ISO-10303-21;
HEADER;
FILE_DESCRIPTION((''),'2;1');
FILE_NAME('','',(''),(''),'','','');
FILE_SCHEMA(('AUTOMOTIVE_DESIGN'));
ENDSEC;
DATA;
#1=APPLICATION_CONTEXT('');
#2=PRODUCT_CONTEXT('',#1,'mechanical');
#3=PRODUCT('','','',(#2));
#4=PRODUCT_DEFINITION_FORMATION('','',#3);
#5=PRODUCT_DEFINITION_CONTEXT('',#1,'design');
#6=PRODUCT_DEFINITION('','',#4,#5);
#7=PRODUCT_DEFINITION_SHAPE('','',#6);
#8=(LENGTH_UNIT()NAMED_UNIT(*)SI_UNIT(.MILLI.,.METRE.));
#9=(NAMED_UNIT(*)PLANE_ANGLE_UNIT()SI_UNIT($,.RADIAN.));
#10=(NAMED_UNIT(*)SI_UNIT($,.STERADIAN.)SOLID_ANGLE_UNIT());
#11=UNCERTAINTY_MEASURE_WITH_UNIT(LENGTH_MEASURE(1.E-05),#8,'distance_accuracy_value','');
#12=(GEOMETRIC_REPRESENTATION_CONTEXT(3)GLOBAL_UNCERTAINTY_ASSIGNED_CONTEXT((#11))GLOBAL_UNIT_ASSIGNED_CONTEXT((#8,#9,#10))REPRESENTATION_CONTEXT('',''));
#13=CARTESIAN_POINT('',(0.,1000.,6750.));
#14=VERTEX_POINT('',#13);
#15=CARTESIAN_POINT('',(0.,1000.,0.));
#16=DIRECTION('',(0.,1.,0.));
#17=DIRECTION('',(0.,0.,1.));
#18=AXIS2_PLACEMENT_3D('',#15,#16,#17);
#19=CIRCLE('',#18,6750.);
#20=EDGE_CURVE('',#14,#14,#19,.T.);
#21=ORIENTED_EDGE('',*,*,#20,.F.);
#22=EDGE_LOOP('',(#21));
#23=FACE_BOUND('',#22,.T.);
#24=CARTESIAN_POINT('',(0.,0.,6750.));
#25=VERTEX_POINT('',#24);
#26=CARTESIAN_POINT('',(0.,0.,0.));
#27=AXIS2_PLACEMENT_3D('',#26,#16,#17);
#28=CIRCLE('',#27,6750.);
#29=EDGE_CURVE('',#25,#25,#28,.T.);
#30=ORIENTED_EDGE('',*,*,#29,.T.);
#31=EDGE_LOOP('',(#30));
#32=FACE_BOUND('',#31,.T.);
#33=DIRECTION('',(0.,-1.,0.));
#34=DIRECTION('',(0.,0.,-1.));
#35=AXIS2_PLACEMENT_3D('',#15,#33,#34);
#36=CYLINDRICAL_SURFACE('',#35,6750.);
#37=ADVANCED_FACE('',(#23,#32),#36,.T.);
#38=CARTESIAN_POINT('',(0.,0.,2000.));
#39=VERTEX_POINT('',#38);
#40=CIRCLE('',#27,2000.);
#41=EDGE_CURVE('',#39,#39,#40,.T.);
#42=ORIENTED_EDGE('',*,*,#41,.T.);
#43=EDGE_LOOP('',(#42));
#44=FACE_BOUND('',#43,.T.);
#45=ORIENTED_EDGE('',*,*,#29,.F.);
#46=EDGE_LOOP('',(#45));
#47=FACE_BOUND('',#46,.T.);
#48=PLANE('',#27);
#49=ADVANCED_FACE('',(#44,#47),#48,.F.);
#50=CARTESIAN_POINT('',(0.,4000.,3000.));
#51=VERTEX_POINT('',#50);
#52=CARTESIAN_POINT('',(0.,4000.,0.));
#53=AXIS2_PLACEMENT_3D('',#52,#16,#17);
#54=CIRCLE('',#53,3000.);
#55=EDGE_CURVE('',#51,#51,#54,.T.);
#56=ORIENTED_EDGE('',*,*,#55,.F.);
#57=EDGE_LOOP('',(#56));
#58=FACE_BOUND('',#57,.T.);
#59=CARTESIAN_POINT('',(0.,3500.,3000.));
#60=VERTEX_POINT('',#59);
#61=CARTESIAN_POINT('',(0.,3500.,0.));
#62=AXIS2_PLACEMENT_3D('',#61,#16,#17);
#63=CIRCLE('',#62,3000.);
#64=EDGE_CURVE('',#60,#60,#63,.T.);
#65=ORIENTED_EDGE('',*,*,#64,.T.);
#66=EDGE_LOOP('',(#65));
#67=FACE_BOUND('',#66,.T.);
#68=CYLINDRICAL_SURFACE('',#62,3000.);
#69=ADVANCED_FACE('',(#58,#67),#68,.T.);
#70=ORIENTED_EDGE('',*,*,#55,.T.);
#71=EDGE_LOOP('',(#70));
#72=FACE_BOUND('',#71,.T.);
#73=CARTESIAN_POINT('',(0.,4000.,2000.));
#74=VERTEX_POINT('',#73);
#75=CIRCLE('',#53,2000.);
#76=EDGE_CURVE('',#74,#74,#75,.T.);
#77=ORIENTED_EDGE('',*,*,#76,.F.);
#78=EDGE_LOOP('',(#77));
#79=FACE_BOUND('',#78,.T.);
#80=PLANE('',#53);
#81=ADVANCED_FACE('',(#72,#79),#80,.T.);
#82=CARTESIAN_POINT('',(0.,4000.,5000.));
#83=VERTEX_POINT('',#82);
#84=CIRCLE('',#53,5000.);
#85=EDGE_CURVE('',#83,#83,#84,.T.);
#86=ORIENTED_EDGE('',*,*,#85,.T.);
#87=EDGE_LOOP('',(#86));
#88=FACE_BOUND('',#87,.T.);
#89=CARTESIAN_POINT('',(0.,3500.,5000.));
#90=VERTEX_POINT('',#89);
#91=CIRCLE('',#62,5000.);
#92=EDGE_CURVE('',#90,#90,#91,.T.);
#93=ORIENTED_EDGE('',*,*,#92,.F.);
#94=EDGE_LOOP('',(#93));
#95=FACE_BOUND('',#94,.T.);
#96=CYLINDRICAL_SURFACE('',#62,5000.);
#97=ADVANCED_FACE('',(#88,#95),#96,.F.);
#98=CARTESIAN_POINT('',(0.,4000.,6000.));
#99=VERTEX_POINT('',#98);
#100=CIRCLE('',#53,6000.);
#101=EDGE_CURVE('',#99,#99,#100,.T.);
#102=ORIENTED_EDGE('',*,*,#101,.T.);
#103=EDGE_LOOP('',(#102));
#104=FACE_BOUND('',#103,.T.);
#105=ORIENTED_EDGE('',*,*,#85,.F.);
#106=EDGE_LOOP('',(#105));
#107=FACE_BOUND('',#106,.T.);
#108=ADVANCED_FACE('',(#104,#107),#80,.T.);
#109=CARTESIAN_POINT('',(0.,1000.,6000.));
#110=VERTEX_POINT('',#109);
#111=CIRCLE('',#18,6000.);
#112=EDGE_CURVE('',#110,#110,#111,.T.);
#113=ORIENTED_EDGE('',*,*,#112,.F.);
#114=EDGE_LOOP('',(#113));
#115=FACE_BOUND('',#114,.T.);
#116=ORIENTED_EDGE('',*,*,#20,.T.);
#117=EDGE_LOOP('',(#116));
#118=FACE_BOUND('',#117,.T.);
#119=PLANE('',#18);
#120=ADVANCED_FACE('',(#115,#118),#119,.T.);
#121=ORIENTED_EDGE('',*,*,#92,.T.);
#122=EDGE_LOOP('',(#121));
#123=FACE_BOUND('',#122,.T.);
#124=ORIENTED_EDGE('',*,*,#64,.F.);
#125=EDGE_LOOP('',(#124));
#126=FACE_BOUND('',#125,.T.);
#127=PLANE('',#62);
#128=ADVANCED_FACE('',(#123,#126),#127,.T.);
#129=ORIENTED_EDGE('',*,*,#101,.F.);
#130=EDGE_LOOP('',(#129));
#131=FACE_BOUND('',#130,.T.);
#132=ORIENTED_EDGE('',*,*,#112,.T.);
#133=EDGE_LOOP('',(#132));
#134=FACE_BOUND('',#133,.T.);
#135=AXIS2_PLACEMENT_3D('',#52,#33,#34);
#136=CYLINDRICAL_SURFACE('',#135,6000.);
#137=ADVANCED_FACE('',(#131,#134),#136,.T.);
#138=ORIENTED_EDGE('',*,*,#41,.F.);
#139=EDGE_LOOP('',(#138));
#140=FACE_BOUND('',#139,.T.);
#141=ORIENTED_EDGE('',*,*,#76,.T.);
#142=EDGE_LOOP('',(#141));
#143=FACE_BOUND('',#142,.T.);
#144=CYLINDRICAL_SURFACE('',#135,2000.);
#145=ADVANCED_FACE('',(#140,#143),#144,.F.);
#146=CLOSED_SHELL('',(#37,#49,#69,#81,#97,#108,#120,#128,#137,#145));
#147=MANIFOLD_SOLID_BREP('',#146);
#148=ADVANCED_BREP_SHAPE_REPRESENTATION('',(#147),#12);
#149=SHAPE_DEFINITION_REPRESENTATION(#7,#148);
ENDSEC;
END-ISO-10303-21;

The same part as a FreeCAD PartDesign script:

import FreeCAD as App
import Part
import Sketcher

V = App.Vector
Q = App.Units.Quantity

doc = App.newDocument("Part")
body = doc.addObject("PartDesign::Body", "Body")

sketch1 = body.newObject("Sketcher::SketchObject", "Sketch")
sketch1.AttachmentSupport = (doc.getObject("XZ_Plane"), [""])
sketch1.MapMode = "FlatFace"
sketch1.addGeometry(Part.Circle(V(0, 0, 0), V(0, 0, 1), 6000), False)
sketch1.addGeometry(Part.Circle(V(0, 0, 0), V(0, 0, 1), 2000), False)
sketch1.addConstraint(Sketcher.Constraint("Coincident", 0, 3, -1, 1))
sketch1.addConstraint(Sketcher.Constraint("Coincident", 1, 3, -1, 1))
sketch1.addConstraint(Sketcher.Constraint("Diameter", 0, Q("12000 mm")))
sketch1.addConstraint(Sketcher.Constraint("Diameter", 1, Q("4000 mm")))
pad1 = body.newObject("PartDesign::Pad", "Pad")
pad1.Profile = sketch1
pad1.Length = 4000
pad1.Reversed = True

sketch2 = body.newObject("Sketcher::SketchObject", "Sketch001")
sketch2.AttachmentSupport = (doc.getObject("XZ_Plane"), [""])
sketch2.MapMode = "FlatFace"
sketch2.addGeometry(Part.Circle(V(0, 0, 0), V(0, 0, 1), 6750), False)
sketch2.addGeometry(Part.Circle(V(0, 0, 0), V(0, 0, 1), 6000), False)
sketch2.addConstraint(Sketcher.Constraint("Coincident", 0, 3, -1, 1))
sketch2.addConstraint(Sketcher.Constraint("Coincident", 1, 3, -1, 1))
sketch2.addConstraint(Sketcher.Constraint("Diameter", 0, Q("13500 mm")))
sketch2.addConstraint(Sketcher.Constraint("Diameter", 1, Q("12000 mm")))
pad2 = body.newObject("PartDesign::Pad", "Pad001")
pad2.Profile = sketch2
pad2.Length = 1000
pad2.Reversed = True

sketch3 = body.newObject("Sketcher::SketchObject", "Sketch002")
sketch3.AttachmentSupport = (doc.getObject("XZ_Plane"), [""])
sketch3.MapMode = "FlatFace"
sketch3.AttachmentOffset = App.Placement(V(0, 0, -4000), App.Rotation())
sketch3.addGeometry(Part.Circle(V(0, 0, 0), V(0, 0, 1), 5000), False)
sketch3.addGeometry(Part.Circle(V(0, 0, 0), V(0, 0, 1), 3000), False)
sketch3.addConstraint(Sketcher.Constraint("Coincident", 0, 3, -1, 1))
sketch3.addConstraint(Sketcher.Constraint("Coincident", 1, 3, -1, 1))
sketch3.addConstraint(Sketcher.Constraint("Diameter", 0, Q("10000 mm")))
sketch3.addConstraint(Sketcher.Constraint("Diameter", 1, Q("6000 mm")))
pocket1 = body.newObject("PartDesign::Pocket", "Pocket")
pocket1.Profile = sketch3
pocket1.Length = 500
pocket1.Reversed = True

doc.recompute()
